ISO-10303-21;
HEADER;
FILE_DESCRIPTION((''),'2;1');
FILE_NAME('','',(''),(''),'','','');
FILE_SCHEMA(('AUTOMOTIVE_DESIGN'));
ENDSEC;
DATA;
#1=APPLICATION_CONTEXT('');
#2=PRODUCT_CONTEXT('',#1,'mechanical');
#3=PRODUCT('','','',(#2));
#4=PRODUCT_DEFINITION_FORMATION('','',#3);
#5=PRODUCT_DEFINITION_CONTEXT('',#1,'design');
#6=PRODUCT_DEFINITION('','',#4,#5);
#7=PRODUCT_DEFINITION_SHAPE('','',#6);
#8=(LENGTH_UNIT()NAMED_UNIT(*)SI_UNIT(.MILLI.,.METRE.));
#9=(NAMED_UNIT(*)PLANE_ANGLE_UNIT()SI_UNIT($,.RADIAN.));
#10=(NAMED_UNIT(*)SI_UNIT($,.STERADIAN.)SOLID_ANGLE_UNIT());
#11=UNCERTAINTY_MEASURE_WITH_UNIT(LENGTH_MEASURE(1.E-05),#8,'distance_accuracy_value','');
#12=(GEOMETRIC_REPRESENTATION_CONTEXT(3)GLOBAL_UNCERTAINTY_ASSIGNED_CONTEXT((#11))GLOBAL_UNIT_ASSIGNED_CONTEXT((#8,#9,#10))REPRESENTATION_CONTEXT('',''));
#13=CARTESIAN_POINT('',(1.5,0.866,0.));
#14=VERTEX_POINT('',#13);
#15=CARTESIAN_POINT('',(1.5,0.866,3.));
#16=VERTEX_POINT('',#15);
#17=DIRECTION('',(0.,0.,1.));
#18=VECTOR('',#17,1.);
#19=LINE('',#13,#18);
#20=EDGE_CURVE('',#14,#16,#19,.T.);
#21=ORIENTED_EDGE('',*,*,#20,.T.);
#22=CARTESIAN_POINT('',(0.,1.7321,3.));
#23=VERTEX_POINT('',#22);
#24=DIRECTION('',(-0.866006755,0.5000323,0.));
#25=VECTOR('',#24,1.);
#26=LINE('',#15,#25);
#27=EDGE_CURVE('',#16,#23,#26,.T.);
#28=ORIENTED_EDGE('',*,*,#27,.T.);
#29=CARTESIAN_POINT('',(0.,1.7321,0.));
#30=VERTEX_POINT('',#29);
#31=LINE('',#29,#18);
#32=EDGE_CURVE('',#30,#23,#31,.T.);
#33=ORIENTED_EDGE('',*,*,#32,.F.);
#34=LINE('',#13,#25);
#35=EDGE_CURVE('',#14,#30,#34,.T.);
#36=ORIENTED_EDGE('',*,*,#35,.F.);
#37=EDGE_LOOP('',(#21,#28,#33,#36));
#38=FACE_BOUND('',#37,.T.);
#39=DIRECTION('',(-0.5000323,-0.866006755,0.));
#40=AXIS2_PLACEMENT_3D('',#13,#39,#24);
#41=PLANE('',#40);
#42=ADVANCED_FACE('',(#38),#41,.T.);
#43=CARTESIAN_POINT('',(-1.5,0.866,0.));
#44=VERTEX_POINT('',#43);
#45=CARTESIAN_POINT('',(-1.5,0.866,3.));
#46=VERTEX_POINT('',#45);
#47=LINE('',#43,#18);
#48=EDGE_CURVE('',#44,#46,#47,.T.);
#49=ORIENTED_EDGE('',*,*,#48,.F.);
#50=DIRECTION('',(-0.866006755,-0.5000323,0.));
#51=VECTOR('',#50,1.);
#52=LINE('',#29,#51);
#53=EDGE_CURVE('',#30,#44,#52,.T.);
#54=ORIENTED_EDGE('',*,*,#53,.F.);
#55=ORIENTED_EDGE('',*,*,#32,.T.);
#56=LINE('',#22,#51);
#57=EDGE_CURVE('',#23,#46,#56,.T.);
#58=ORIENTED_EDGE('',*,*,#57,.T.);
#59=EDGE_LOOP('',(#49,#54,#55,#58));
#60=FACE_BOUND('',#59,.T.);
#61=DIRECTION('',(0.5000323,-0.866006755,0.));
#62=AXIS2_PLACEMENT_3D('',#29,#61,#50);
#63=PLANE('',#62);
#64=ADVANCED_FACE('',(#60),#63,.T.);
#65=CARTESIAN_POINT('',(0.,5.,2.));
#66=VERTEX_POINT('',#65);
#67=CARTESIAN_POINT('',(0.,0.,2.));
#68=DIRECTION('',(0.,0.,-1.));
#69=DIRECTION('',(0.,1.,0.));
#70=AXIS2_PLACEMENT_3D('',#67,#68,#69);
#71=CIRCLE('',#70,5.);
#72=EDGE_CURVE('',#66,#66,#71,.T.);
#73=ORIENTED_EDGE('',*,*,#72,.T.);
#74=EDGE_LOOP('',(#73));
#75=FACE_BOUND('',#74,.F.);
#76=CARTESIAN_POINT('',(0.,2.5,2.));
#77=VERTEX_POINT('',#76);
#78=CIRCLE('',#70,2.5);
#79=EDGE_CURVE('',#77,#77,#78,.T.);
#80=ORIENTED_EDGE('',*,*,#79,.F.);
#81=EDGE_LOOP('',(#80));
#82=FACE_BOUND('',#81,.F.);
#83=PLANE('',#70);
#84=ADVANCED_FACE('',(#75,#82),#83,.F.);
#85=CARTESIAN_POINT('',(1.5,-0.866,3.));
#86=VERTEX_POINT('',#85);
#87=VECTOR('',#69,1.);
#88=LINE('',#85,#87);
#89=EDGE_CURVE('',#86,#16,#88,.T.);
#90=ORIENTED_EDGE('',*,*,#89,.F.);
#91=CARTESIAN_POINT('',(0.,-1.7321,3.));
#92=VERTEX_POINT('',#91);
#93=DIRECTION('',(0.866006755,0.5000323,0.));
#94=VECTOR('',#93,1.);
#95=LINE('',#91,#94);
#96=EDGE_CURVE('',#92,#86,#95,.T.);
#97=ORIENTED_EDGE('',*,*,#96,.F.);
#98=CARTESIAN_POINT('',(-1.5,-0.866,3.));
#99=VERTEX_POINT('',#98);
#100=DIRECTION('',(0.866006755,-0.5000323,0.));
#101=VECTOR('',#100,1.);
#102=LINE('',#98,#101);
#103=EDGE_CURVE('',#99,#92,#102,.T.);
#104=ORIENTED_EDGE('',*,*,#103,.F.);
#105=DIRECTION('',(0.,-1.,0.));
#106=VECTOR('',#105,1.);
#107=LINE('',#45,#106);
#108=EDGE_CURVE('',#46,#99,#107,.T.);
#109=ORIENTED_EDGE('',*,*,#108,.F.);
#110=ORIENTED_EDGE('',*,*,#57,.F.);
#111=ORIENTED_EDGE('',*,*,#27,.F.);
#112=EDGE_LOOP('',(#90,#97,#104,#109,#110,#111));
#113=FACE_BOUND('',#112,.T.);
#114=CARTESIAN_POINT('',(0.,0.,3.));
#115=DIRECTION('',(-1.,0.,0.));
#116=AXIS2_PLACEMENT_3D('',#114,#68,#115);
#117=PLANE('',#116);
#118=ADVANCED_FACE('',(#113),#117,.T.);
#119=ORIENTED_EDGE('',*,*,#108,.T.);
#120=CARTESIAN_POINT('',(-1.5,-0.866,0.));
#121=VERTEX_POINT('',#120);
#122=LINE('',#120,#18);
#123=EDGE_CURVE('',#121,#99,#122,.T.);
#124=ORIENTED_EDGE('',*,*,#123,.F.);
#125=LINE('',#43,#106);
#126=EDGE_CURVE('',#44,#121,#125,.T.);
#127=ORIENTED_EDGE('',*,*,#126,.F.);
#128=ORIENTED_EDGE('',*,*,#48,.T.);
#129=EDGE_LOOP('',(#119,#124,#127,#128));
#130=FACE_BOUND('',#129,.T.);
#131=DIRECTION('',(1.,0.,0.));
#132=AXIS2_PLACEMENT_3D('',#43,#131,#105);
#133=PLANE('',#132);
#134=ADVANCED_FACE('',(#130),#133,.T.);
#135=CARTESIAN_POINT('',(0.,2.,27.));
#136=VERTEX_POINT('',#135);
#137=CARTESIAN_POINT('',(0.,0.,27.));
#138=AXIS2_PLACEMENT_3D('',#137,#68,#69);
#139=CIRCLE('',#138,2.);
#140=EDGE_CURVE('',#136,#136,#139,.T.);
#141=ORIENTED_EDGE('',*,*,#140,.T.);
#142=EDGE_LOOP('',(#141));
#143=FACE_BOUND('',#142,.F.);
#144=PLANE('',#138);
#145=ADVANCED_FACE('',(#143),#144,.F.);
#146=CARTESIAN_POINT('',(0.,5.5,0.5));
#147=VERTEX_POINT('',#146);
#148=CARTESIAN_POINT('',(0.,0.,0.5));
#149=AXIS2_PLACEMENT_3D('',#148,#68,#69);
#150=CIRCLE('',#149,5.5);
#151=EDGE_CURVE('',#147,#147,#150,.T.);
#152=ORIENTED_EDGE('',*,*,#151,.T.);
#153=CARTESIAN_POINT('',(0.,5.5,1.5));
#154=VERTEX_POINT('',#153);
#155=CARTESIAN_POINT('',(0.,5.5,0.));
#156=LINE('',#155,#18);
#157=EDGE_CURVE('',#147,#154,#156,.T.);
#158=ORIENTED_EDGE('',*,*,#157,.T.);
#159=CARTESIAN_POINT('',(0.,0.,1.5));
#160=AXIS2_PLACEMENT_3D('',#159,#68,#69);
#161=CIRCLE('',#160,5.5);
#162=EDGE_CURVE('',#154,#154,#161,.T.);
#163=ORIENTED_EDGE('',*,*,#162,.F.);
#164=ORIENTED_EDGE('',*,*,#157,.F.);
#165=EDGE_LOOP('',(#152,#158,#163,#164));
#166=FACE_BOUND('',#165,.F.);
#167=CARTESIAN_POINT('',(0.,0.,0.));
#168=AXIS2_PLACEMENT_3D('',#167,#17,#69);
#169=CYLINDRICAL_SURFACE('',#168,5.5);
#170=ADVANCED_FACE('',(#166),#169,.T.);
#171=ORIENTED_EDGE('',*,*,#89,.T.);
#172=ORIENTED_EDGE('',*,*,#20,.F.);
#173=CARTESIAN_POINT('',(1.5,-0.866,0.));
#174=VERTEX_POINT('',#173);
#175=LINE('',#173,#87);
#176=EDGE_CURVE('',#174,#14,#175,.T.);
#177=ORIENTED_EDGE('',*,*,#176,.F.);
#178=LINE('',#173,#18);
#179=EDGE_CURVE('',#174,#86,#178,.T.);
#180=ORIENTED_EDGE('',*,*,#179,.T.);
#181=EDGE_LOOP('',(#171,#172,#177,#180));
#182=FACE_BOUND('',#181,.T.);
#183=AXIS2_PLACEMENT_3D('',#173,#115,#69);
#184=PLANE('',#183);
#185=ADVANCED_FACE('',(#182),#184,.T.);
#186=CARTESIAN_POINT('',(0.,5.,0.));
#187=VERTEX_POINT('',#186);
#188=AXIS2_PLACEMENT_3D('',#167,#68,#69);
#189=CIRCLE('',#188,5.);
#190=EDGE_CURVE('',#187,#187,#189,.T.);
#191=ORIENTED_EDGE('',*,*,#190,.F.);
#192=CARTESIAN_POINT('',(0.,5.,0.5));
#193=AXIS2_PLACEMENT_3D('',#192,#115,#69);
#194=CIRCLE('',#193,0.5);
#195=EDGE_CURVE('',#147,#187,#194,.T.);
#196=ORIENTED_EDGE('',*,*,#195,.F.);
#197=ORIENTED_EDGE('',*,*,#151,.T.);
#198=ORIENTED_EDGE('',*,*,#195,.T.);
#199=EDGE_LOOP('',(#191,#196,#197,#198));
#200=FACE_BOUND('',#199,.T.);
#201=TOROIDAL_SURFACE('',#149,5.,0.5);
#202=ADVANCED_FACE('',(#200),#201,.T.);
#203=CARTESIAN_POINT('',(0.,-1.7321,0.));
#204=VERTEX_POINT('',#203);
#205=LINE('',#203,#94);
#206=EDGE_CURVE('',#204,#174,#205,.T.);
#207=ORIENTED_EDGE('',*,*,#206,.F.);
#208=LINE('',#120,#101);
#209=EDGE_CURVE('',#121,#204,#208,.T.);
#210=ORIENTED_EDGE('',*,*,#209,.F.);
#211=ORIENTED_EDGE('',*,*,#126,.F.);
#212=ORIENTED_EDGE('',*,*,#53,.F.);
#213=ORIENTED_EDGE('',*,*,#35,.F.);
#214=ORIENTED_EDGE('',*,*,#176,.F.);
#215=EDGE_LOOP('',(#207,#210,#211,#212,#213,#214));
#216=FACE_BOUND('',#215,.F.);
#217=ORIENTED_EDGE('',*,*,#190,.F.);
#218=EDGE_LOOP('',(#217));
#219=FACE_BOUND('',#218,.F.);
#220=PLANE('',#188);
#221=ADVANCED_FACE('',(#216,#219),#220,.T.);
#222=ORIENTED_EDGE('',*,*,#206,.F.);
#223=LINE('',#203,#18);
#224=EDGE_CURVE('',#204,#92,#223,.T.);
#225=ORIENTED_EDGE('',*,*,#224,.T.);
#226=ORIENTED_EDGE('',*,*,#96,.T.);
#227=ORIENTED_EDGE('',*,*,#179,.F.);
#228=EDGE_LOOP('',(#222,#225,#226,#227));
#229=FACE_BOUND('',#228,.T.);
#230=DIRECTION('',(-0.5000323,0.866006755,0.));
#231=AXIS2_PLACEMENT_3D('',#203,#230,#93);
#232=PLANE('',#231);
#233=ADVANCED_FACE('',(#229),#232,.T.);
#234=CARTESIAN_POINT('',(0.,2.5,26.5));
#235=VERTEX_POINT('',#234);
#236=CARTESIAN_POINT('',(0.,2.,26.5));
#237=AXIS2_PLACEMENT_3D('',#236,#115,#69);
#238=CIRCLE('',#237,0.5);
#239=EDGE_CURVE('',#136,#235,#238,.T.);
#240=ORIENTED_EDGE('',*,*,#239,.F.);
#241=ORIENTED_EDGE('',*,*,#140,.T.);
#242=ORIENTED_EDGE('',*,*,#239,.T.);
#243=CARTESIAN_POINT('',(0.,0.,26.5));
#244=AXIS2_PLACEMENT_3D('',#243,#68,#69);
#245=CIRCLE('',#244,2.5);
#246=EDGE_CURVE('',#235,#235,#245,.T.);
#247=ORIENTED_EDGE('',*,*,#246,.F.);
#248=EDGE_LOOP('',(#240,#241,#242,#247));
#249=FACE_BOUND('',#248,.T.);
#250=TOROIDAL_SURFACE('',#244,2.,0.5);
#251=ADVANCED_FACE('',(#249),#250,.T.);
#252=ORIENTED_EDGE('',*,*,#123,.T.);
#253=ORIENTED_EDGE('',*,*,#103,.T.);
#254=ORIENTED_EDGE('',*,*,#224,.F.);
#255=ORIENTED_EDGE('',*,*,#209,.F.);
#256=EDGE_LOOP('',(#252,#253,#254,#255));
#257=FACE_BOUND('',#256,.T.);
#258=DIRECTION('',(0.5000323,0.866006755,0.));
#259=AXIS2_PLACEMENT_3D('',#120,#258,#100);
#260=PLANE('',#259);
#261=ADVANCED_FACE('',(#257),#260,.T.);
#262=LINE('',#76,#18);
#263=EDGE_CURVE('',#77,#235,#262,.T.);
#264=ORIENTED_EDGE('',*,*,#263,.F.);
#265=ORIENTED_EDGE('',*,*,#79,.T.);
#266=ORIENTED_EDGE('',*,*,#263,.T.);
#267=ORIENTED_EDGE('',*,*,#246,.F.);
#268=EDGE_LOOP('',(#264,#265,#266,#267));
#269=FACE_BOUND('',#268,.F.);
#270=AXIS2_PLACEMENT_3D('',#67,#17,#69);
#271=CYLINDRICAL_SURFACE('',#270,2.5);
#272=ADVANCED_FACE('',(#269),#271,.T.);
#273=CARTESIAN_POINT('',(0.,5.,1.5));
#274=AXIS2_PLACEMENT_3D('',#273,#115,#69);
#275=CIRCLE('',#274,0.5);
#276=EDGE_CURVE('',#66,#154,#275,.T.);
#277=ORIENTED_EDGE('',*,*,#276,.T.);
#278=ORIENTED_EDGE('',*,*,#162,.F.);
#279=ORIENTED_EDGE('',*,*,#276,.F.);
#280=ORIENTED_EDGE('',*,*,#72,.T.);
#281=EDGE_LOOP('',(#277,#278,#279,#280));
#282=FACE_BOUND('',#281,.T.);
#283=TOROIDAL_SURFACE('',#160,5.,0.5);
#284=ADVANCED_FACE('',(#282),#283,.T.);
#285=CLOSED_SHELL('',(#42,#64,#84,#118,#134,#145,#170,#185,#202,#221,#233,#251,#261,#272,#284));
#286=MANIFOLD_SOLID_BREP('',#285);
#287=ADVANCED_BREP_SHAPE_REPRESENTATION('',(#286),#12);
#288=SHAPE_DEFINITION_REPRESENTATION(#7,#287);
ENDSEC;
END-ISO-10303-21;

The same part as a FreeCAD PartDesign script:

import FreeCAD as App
import Part
import Sketcher
from FreeCAD import Vector


def edges_at(feature, points):
    """Names of the edges that pass closest to the given points."""
    edges = feature.Shape.Edges
    near = lambda p: min(range(len(edges)), key=lambda i: edges[i].distToShape(Part.Vertex(*p))[0])
    return sorted({f"Edge{near(p) + 1}" for p in points})

doc = App.newDocument("Part")
body = doc.addObject("PartDesign::Body", "Body")

sketch1 = body.newObject("Sketcher::SketchObject", "Sketch")
sketch1.AttachmentSupport = (doc.getObject("YZ_Plane"), [""])
sketch1.MapMode = "FlatFace"
sketch1.addGeometry(Part.LineSegment(Vector(0, 27, 0), Vector(0, 0, 0)), False)
sketch1.addGeometry(Part.LineSegment(Vector(0, 0, 0), Vector(5.5, 0, 0)), False)
sketch1.addGeometry(Part.LineSegment(Vector(5.5, 0, 0), Vector(5.5, 2, 0)), False)
sketch1.addGeometry(Part.LineSegment(Vector(5.5, 2, 0), Vector(2.5, 2, 0)), False)
sketch1.addGeometry(Part.LineSegment(Vector(2.5, 2, 0), Vector(2.5, 27, 0)), False)
sketch1.addGeometry(Part.LineSegment(Vector(2.5, 27, 0), Vector(0, 27, 0)), False)
sketch1.addConstraint(Sketcher.Constraint("Coincident", 0, 2, 1, 1))
sketch1.addConstraint(Sketcher.Constraint("Coincident", 1, 2, 2, 1))
sketch1.addConstraint(Sketcher.Constraint("Coincident", 2, 2, 3, 1))
sketch1.addConstraint(Sketcher.Constraint("Coincident", 3, 2, 4, 1))
sketch1.addConstraint(Sketcher.Constraint("Coincident", 4, 2, 5, 1))
sketch1.addConstraint(Sketcher.Constraint("Coincident", 5, 2, 0, 1))
sketch1.addConstraint(Sketcher.Constraint("Vertical", 0))
sketch1.addConstraint(Sketcher.Constraint("Horizontal", 1))
sketch1.addConstraint(Sketcher.Constraint("Vertical", 2))
sketch1.addConstraint(Sketcher.Constraint("Horizontal", 3))
sketch1.addConstraint(Sketcher.Constraint("Vertical", 4))
sketch1.addConstraint(Sketcher.Constraint("Horizontal", 5))
sketch1.addConstraint(Sketcher.Constraint("Coincident", 0, 2, -1, 1))
sketch1.addConstraint(Sketcher.Constraint("DistanceY", 2, 1, 2, 2, 2.0))
sketch1.addConstraint(Sketcher.Constraint("DistanceY", 4, 1, 4, 2, 25.0))
sketch1.addConstraint(Sketcher.Constraint("DistanceX", 1, 1, 1, 2, 5.5))
sketch1.addConstraint(Sketcher.Constraint("DistanceX", 5, 2, 5, 1, 2.5))
revolution = body.newObject("PartDesign::Revolution", "Revolution")
revolution.Profile = sketch1
revolution.ReferenceAxis = (sketch1, ["V_Axis"])
revolution.Angle = 360
doc.recompute()

fillet = body.newObject("PartDesign::Fillet", "Fillet")
fillet.Base = (revolution, edges_at(revolution, [(0, -5.5, 0), (0, -5.5, 2), (0, -2.5, 27)]))
fillet.Radius = 0.5

sketch2 = body.newObject("Sketcher::SketchObject", "Sketch001")
sketch2.AttachmentSupport = (doc.getObject("XY_Plane"), [""])
sketch2.MapMode = "FlatFace"
sketch2.addGeometry(Part.LineSegment(Vector(0, -1.7, 0), Vector(-1.5, -0.9, 0)), False)
sketch2.addGeometry(Part.LineSegment(Vector(-1.5, -0.9, 0), Vector(-1.5, 0.9, 0)), False)
sketch2.addGeometry(Part.LineSegment(Vector(-1.5, 0.9, 0), Vector(0, 1.7, 0)), False)
sketch2.addGeometry(Part.LineSegment(Vector(0, 1.7, 0), Vector(1.5, 0.9, 0)), False)
sketch2.addGeometry(Part.LineSegment(Vector(1.5, 0.9, 0), Vector(1.5, -0.9, 0)), False)
sketch2.addGeometry(Part.LineSegment(Vector(1.5, -0.9, 0), Vector(0, -1.7, 0)), False)
sketch2.addConstraint(Sketcher.Constraint("Coincident", 0, 2, 1, 1))
sketch2.addConstraint(Sketcher.Constraint("Coincident", 1, 2, 2, 1))
sketch2.addConstraint(Sketcher.Constraint("Coincident", 2, 2, 3, 1))
sketch2.addConstraint(Sketcher.Constraint("Coincident", 3, 2, 4, 1))
sketch2.addConstraint(Sketcher.Constraint("Coincident", 4, 2, 5, 1))
sketch2.addConstraint(Sketcher.Constraint("Coincident", 5, 2, 0, 1))
sketch2.addConstraint(Sketcher.Constraint("Vertical", 1))
sketch2.addConstraint(Sketcher.Constraint("Vertical", 4))
sketch2.addConstraint(Sketcher.Constraint("Symmetric", 0, 2, 3, 2, -1, 1))
sketch2.addConstraint(Sketcher.Constraint("Symmetric", 2, 2, 5, 2, -1, 1))
sketch2.addConstraint(Sketcher.Constraint("PointOnObject", 2, 2, -2))
sketch2.addConstraint(Sketcher.Constraint("Parallel", 2, 5))
sketch2.addConstraint(Sketcher.Constraint("Horizontal", 1, 2, 3, 2))
sketch2.addConstraint(Sketcher.Constraint("DistanceX", 1, 2, 3, 2, 3.0))
sketch2.addConstraint(Sketcher.Constraint("DistanceY", 1, 1, 1, 2, 1.732))
sketch2.addConstraint(Sketcher.Constraint("Distance", 0, 1.732))
pocket1 = body.newObject("PartDesign::Pocket", "Pocket")
pocket1.Profile = sketch2
pocket1.Length = 3
pocket1.Reversed = True

doc.recompute()
